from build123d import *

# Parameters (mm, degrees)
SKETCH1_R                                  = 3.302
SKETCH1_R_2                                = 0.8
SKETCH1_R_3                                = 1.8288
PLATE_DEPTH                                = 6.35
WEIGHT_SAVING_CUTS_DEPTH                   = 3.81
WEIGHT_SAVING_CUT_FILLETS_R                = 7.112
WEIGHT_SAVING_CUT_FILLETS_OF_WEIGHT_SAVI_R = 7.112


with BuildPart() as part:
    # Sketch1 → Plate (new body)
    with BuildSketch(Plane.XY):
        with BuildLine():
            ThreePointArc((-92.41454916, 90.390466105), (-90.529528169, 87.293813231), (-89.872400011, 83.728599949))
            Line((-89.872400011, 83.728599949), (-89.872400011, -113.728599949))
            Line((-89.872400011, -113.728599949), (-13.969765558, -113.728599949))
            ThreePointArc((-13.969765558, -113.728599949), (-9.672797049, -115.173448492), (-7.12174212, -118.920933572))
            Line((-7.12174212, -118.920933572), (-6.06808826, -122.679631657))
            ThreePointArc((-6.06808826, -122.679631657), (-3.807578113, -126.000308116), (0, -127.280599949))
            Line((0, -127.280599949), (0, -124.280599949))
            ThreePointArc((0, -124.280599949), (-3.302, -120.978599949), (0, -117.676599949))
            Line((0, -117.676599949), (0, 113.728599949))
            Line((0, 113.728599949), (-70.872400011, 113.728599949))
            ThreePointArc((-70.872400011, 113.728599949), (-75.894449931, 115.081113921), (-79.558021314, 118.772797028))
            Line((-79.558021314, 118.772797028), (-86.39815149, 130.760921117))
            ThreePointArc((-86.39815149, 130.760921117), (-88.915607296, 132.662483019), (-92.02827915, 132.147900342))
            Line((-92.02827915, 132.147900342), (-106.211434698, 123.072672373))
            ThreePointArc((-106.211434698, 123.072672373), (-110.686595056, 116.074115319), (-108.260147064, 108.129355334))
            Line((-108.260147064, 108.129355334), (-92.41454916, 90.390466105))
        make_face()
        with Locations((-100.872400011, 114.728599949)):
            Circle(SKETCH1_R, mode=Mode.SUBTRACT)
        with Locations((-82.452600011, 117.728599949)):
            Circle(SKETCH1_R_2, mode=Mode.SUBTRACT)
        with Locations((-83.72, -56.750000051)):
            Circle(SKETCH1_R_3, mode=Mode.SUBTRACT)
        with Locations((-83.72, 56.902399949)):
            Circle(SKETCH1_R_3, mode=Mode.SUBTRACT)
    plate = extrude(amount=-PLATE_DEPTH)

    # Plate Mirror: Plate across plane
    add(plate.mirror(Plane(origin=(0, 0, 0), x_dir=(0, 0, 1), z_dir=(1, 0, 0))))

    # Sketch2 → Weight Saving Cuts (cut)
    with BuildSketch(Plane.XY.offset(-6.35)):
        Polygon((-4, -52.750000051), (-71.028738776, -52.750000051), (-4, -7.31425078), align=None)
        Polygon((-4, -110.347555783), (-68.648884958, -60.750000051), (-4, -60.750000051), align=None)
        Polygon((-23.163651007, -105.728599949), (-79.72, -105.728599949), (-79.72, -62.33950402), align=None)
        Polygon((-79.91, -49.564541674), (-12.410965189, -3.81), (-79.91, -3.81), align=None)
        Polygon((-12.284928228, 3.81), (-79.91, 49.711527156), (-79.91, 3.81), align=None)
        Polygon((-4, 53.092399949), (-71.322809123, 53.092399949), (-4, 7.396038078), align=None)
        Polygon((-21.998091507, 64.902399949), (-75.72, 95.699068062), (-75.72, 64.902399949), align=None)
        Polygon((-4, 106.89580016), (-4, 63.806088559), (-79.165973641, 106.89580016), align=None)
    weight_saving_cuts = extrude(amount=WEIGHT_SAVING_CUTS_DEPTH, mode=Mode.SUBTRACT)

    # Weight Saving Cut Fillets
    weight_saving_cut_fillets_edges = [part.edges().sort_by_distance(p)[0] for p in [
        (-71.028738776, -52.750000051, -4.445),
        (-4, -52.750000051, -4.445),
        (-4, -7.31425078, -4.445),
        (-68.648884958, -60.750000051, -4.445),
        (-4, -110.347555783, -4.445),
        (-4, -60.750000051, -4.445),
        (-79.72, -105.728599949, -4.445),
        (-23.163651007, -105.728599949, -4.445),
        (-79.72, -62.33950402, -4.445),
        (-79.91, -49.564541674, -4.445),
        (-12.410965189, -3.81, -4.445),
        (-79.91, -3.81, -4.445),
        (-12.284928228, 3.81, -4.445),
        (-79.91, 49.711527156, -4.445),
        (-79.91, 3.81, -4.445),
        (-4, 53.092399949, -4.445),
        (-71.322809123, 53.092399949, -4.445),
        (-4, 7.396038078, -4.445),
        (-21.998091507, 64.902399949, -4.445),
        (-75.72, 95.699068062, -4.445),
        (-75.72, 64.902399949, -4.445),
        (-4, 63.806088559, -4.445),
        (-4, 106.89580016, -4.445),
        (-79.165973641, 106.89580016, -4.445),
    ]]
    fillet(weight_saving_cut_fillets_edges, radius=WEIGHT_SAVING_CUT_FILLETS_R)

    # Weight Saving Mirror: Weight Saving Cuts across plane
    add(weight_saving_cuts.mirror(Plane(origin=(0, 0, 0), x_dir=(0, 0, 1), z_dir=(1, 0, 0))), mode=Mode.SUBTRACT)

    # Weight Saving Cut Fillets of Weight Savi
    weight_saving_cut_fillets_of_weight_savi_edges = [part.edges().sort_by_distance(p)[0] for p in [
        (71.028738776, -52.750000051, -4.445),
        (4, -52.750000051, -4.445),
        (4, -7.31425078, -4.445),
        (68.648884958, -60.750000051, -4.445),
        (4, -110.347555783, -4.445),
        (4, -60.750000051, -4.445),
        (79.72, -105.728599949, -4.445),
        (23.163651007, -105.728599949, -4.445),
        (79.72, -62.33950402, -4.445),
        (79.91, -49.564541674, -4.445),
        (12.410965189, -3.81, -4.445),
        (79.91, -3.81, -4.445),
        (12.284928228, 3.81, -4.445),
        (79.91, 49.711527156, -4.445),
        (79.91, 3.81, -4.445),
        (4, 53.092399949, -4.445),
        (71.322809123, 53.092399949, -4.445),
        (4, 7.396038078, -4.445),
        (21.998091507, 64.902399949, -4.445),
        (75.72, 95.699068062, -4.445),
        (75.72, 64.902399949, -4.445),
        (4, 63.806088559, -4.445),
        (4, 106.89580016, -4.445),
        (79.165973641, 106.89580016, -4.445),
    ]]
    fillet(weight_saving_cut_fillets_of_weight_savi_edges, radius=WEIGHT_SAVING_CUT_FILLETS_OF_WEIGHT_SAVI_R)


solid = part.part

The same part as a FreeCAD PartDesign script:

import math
import FreeCAD as App
import Part
import Sketcher
from FreeCAD import Vector
Q = App.Units.Quantity


def edges_at(feature, points):
    """Names of the edges that pass closest to the given points."""
    edges = feature.Shape.Edges
    near = lambda p: min(range(len(edges)), key=lambda i: edges[i].distToShape(Part.Vertex(*p))[0])
    return sorted({f"Edge{near(p) + 1}" for p in points})


def add_polygon(sketch, points):
    """Adds a closed chain of lines whose ends are joined by coincident constraints."""
    first, n = sketch.GeometryCount, len(points)
    for a, b in zip(points, points[1:] + points[:1]):
        sketch.addGeometry(Part.LineSegment(App.Vector(*a, 0), App.Vector(*b, 0)), False)
    for i in range(n):
        sketch.addConstraint(Sketcher.Constraint("Coincident", first + i, 2, first + (i + 1) % n, 1))

doc = App.newDocument("Part")
body = doc.addObject("PartDesign::Body", "Body")

# Sketch on XY plane
sketch1 = body.newObject("Sketcher::SketchObject", "Sketch")
sketch1.AttachmentSupport = (doc.getObject("XY_Plane"), [""])
sketch1.MapMode = "FlatFace"
sketch1.addGeometry([
    Part.ArcOfCircle(Part.Circle(Vector(-99.9, 83.7, 0), Vector(0, 0, 1), 10), math.radians(0), math.radians(42)),  # 0
    Part.LineSegment(Vector(-89.9, 83.7, 0), Vector(-89.9, -113.7, 0)),  # 1
    Part.LineSegment(Vector(-89.9, -113.7, 0), Vector(-14, -113.7, 0)),  # 2
    Part.ArcOfCircle(Part.Circle(Vector(-14, -120.8, 0), Vector(0, 0, 1), 7.1), math.radians(16), math.radians(90)),  # 3
    Part.LineSegment(Vector(-7.1, -118.9, 0), Vector(-6.1, -122.7, 0)),  # 4
    Part.ArcOfCircle(Part.Circle(Vector(0, -121, 0), Vector(0, 0, 1), 6.3), math.radians(-164), math.radians(-90)),  # 5
    Part.LineSegment(Vector(0, -127.3, 0), Vector(0, -124.3, 0)),  # 6
    Part.ArcOfCircle(Part.Circle(Vector(0, -121, 0), Vector(0, 0, 1), 3.3), math.radians(90), math.radians(270)),  # 7
    Part.LineSegment(Vector(0, -117.7, 0), Vector(0, 113.7, 0)),  # 8
    Part.LineSegment(Vector(0, 113.7, 0), Vector(-70.9, 113.7, 0)),  # 9
    Part.ArcOfCircle(Part.Circle(Vector(-70.9, 123.7, 0), Vector(0, 0, 1), 10), math.radians(-150), math.radians(-90)),  # 10
    Part.LineSegment(Vector(-79.6, 118.8, 0), Vector(-86.4, 130.8, 0)),  # 11
    Part.ArcOfCircle(Part.Circle(Vector(-89.9, 128.8, 0), Vector(0, 0, 1), 4), math.radians(30), math.radians(123)),  # 12
    Part.LineSegment(Vector(-92, 132.1, 0), Vector(-106.2, 123.1, 0)),  # 13
    Part.ArcOfCircle(Part.Circle(Vector(-100.9, 114.7, 0), Vector(0, 0, 1), 9.9), math.radians(123), math.radians(222)),  # 14
    Part.LineSegment(Vector(-108.3, 108.1, 0), Vector(-92.4, 90.4, 0)),  # 15
    Part.Circle(Vector(-83.7, -56.8, 0), Vector(0, 0, 1), 1.8),  # 16
    Part.Circle(Vector(-100.9, 114.7, 0), Vector(0, 0, 1), 3.3),  # 17
    Part.Circle(Vector(-83.7, 56.9, 0), Vector(0, 0, 1), 1.8),  # 18
    Part.Circle(Vector(-82.5, 117.7, 0), Vector(0, 0, 1), 0.8),  # 19
], False)
sketch1.addConstraint([
    Sketcher.Constraint("Tangent", 0, 1, 1, 1),
    Sketcher.Constraint("Coincident", 1, 2, 2, 1),
    Sketcher.Constraint("Tangent", 2, 2, 3, 2),
    Sketcher.Constraint("Tangent", 3, 1, 4, 1),
    Sketcher.Constraint("Tangent", 4, 2, 5, 1),
    Sketcher.Constraint("Coincident", 5, 2, 6, 1),
    Sketcher.Constraint("Coincident", 6, 2, 7, 2),
    Sketcher.Constraint("Coincident", 7, 1, 8, 1),
    Sketcher.Constraint("Coincident", 8, 2, 9, 1),
    Sketcher.Constraint("Tangent", 9, 2, 10, 2),
    Sketcher.Constraint("Tangent", 10, 1, 11, 1),
    Sketcher.Constraint("Tangent", 11, 2, 12, 1),
    Sketcher.Constraint("Tangent", 12, 2, 13, 1),
    Sketcher.Constraint("Tangent", 13, 2, 14, 1),
    Sketcher.Constraint("Tangent", 14, 2, 15, 1),
    Sketcher.Constraint("Tangent", 15, 2, 0, 2),
    Sketcher.Constraint("Vertical", 1),
    Sketcher.Constraint("Horizontal", 2),
    Sketcher.Constraint("Vertical", 6),
    Sketcher.Constraint("Vertical", 8),
    Sketcher.Constraint("Horizontal", 9),
    Sketcher.Constraint("Coincident", 7, 3, 5, 3),
    Sketcher.Constraint("Coincident", 17, 3, 14, 3),
    Sketcher.Constraint("Equal", 0, 10),
    Sketcher.Constraint("Equal", 7, 17),
    Sketcher.Constraint("Equal", 16, 18),
    Sketcher.Constraint("PointOnObject", 5, 3, -2),
    Sketcher.Constraint("PointOnObject", 5, 2, -2),
    Sketcher.Constraint("PointOnObject", 7, 1, -2),
    Sketcher.Constraint("Vertical", 16, 3, 18, 3),
    Sketcher.Constraint("Vertical", 12, 3, 0, 1),
    Sketcher.Constraint("Diameter", 17, Q("0.26 in")),
    Sketcher.Constraint("Radius", 3, Q("0.28 in")),
    Sketcher.Constraint("Radius", 14, Q("0.39 in")),
    Sketcher.Constraint("Diameter", 16, Q("0.144 in")),
    Sketcher.Constraint("Diameter", 19, Q("1.6 mm")),
    Sketcher.Constraint("Radius", 0, Q("10 mm")),
    Sketcher.Constraint("Radius", 5, Q("6.302 mm")),
    Sketcher.Constraint("Radius", 12, Q("4 mm")),
    Sketcher.Constraint("DistanceX", 9, 2, 9, 1, Q("70.8724 mm")),
    Sketcher.Constraint("DistanceY", 1, 2, 1, 1, Q("197.4572 mm")),
    Sketcher.Constraint("DistanceY", 8, 1, 8, 2, Q("231.4052 mm")),
    Sketcher.Constraint("DistanceX", 1, 2, 3, 1, Q("3.2578999 in")),
    Sketcher.Constraint("Distance", 13, Q("16.838102 mm")),
    Sketcher.Constraint("DistanceX", 0, 3, -1, 1, Q("99.8724 mm")),
    Sketcher.Constraint("DistanceY", -1, 1, 0, 3, Q("83.7286 mm")),
    Sketcher.Constraint("DistanceY", 5, 3, -1, 1, Q("120.9786 mm")),
    Sketcher.Constraint("DistanceY", -1, 1, 12, 3, Q("128.7786 mm")),
    Sketcher.Constraint("DistanceX", 14, 3, -1, 1, Q("100.8724 mm")),
    Sketcher.Constraint("DistanceX", 16, 3, -1, 1, Q("83.72 mm")),
    Sketcher.Constraint("DistanceY", 16, 3, -1, 1, Q("56.75 mm")),
    Sketcher.Constraint("DistanceY", -1, 1, 18, 3, Q("56.9024 mm")),
    Sketcher.Constraint("DistanceX", 19, 3, -1, 1, Q("82.4526 mm")),
    Sketcher.Constraint("DistanceY", -1, 1, 19, 3, Q("117.7286 mm")),
])
pad1 = body.newObject("PartDesign::Pad", "Pad")
pad1.Profile = sketch1
pad1.Length = Q("0.25 in")
pad1.Reversed = True
doc.recompute()

mirrored = body.newObject("PartDesign::Mirrored", "Mirrored")
mirrored.Originals = [pad1]
mirrored.MirrorPlane = (doc.getObject("YZ_Plane"), [""])
body.Tip = mirrored

# Sketch on XY plane
sketch2 = body.newObject("Sketcher::SketchObject", "Sketch001")
sketch2.AttachmentSupport = (doc.getObject("XY_Plane"), [""])
sketch2.MapMode = "FlatFace"
sketch2.AttachmentOffset = App.Placement(Vector(0, 0, -0.25 * 25.4), App.Rotation())
add_polygon(sketch2, [(-71, -53), (-4, -53), (-4, -7)])  # lines 0-2
add_polygon(sketch2, [(-69, -61), (-4, -110), (-4, -61)])  # lines 3-5
add_polygon(sketch2, [(-80, -106), (-23, -106), (-80, -62)])  # lines 6-8
add_polygon(sketch2, [(-80, -50), (-12, -4), (-80, -4)])  # lines 9-11
add_polygon(sketch2, [(-12, 4), (-80, 50), (-80, 4)])  # lines 12-14
add_polygon(sketch2, [(-4, 53), (-71, 53), (-4, 7)])  # lines 15-17
add_polygon(sketch2, [(-22, 65), (-76, 96), (-76, 65)])  # lines 18-20
add_polygon(sketch2, [(-4, 64), (-4, 107), (-79, 107)])  # lines 21-23
sketch2.addConstraint([
    Sketcher.Constraint("Horizontal", 0),
    Sketcher.Constraint("Vertical", 1),
    Sketcher.Constraint("Vertical", 4),
    Sketcher.Constraint("Horizontal", 5),
    Sketcher.Constraint("Horizontal", 6),
    Sketcher.Constraint("Vertical", 8),
    Sketcher.Constraint("Horizontal", 10),
    Sketcher.Constraint("Vertical", 11),
    Sketcher.Constraint("Vertical", 13),
    Sketcher.Constraint("Horizontal", 14),
    Sketcher.Constraint("Horizontal", 15),
    Sketcher.Constraint("Vertical", 17),
    Sketcher.Constraint("Vertical", 19),
    Sketcher.Constraint("Horizontal", 20),
    Sketcher.Constraint("Vertical", 21),
    Sketcher.Constraint("Horizontal", 22),
    Sketcher.Constraint("Symmetric", 10, 2, 13, 2, -1),
    Sketcher.Constraint("Parallel", 3, 7),
    Sketcher.Constraint("Parallel", 2, 9),
    Sketcher.Constraint("Parallel", 12, 16),
    Sketcher.Constraint("Parallel", 18, 23),
    Sketcher.Constraint("Vertical", 1, 2, 3, 2),
    Sketcher.Constraint("Vertical", 4, 2, 16, 2),
    Sketcher.Constraint("Vertical", 17, 2, 21, 2),
    Sketcher.Constraint("DistanceY", 10, 2, 13, 2, Q("0.3 in")),
    Sketcher.Constraint("DistanceX", 0, 1, 0, 2, Q("67.028739 mm")),
    Sketcher.Constraint("DistanceX", 6, 1, 6, 2, Q("56.556349 mm")),
    Sketcher.Constraint("DistanceX", 14, 1, 14, 2, Q("67.625072 mm")),
    Sketcher.Constraint("DistanceX", 15, 2, 15, 1, Q("67.322809 mm")),
    Sketcher.Constraint("DistanceX", 20, 1, 20, 2, Q("53.721908 mm")),
    Sketcher.Constraint("DistanceY", 1, 1, 1, 2, Q("45.435749 mm")),
    Sketcher.Constraint("DistanceY", 11, 2, 11, 1, Q("45.754542 mm")),
    Sketcher.Constraint("DistanceY", 17, 1, 17, 2, Q("45.696362 mm")),
    Sketcher.Constraint("DistanceY", 19, 2, 19, 1, Q("30.796668 mm")),
    Sketcher.Constraint("DistanceY", 21, 1, 21, 2, Q("43.089712 mm")),
    Sketcher.Constraint("DistanceX", 0, 2, -1, 1, Q("4 mm")),
    Sketcher.Constraint("DistanceY", 0, 2, -1, 1, Q("52.75 mm")),
    Sketcher.Constraint("DistanceY", 4, 2, -1, 1, Q("60.75 mm")),
    Sketcher.Constraint("DistanceY", 6, 2, -1, 1, Q("105.7286 mm")),
    Sketcher.Constraint("DistanceX", 7, 2, -1, 1, Q("79.72 mm")),
    Sketcher.Constraint("DistanceX", 10, 2, -1, 1, Q("79.91 mm")),
    Sketcher.Constraint("DistanceY", -1, 1, 15, 2, Q("53.0924 mm")),
    Sketcher.Constraint("DistanceX", 18, 2, -1, 1, Q("75.72 mm")),
    Sketcher.Constraint("DistanceY", -1, 1, 19, 2, Q("64.9024 mm")),
    Sketcher.Constraint("DistanceY", -1, 1, 21, 2, Q("106.8958 mm")),
    Sketcher.Constraint("Distance", 3, Q("81.482488 mm")),
    Sketcher.Constraint("DistanceX", 5, 2, 5, 1, Q("64.648885 mm")),
])
pocket1 = body.newObject("PartDesign::Pocket", "Pocket")
pocket1.Profile = sketch2
pocket1.Length = Q("0.15 in")
pocket1.Reversed = True
doc.recompute()

fillet = body.newObject("PartDesign::Fillet", "Fillet")
fillet.Base = (pocket1, edges_at(pocket1, [
    (-71.029, -52.75, -4.445),
    (-4, -52.75, -4.445),
    (-4, -7.314, -4.445),
    (-68.649, -60.75, -4.445),
    (-4, -110.348, -4.445),
    (-4, -60.75, -4.445),
    (-79.72, -105.729, -4.445),
    (-23.164, -105.729, -4.445),
    (-79.72, -62.34, -4.445),
    (-79.91, -49.565, -4.445),
    (-12.411, -3.81, -4.445),
    (-79.91, -3.81, -4.445),
    (-12.285, 3.81, -4.445),
    (-79.91, 49.712, -4.445),
    (-79.91, 3.81, -4.445),
    (-4, 53.092, -4.445),
    (-71.323, 53.092, -4.445),
    (-4, 7.396, -4.445),
    (-21.998, 64.902, -4.445),
    (-75.72, 95.699, -4.445),
    (-75.72, 64.902, -4.445),
    (-4, 63.806, -4.445),
    (-4, 106.896, -4.445),
    (-79.166, 106.896, -4.445),
]))
fillet.Radius = Q("0.28 in")
doc.recompute()

mirrored2 = body.newObject("PartDesign::Mirrored", "Mirrored001")
mirrored2.Originals = [pocket1]
mirrored2.MirrorPlane = (doc.getObject("YZ_Plane"), [""])
body.Tip = mirrored2
doc.recompute()

fillet2 = body.newObject("PartDesign::Fillet", "Fillet001")
fillet2.Base = (mirrored2, edges_at(mirrored2, [
    (71.029, -52.75, -4.445),
    (4, -52.75, -4.445),
    (4, -7.314, -4.445),
    (68.649, -60.75, -4.445),
    (4, -110.348, -4.445),
    (4, -60.75, -4.445),
    (79.72, -105.729, -4.445),
    (23.164, -105.729, -4.445),
    (79.72, -62.34, -4.445),
    (79.91, -49.565, -4.445),
    (12.411, -3.81, -4.445),
    (79.91, -3.81, -4.445),
    (12.285, 3.81, -4.445),
    (79.91, 49.712, -4.445),
    (79.91, 3.81, -4.445),
    (4, 53.092, -4.445),
    (71.323, 53.092, -4.445),
    (4, 7.396, -4.445),
    (21.998, 64.902, -4.445),
    (75.72, 95.699, -4.445),
    (75.72, 64.902, -4.445),
    (4, 63.806, -4.445),
    (4, 106.896, -4.445),
    (79.166, 106.896, -4.445),
]))
fillet2.Radius = Q("0.28 in")

doc.recompute()
